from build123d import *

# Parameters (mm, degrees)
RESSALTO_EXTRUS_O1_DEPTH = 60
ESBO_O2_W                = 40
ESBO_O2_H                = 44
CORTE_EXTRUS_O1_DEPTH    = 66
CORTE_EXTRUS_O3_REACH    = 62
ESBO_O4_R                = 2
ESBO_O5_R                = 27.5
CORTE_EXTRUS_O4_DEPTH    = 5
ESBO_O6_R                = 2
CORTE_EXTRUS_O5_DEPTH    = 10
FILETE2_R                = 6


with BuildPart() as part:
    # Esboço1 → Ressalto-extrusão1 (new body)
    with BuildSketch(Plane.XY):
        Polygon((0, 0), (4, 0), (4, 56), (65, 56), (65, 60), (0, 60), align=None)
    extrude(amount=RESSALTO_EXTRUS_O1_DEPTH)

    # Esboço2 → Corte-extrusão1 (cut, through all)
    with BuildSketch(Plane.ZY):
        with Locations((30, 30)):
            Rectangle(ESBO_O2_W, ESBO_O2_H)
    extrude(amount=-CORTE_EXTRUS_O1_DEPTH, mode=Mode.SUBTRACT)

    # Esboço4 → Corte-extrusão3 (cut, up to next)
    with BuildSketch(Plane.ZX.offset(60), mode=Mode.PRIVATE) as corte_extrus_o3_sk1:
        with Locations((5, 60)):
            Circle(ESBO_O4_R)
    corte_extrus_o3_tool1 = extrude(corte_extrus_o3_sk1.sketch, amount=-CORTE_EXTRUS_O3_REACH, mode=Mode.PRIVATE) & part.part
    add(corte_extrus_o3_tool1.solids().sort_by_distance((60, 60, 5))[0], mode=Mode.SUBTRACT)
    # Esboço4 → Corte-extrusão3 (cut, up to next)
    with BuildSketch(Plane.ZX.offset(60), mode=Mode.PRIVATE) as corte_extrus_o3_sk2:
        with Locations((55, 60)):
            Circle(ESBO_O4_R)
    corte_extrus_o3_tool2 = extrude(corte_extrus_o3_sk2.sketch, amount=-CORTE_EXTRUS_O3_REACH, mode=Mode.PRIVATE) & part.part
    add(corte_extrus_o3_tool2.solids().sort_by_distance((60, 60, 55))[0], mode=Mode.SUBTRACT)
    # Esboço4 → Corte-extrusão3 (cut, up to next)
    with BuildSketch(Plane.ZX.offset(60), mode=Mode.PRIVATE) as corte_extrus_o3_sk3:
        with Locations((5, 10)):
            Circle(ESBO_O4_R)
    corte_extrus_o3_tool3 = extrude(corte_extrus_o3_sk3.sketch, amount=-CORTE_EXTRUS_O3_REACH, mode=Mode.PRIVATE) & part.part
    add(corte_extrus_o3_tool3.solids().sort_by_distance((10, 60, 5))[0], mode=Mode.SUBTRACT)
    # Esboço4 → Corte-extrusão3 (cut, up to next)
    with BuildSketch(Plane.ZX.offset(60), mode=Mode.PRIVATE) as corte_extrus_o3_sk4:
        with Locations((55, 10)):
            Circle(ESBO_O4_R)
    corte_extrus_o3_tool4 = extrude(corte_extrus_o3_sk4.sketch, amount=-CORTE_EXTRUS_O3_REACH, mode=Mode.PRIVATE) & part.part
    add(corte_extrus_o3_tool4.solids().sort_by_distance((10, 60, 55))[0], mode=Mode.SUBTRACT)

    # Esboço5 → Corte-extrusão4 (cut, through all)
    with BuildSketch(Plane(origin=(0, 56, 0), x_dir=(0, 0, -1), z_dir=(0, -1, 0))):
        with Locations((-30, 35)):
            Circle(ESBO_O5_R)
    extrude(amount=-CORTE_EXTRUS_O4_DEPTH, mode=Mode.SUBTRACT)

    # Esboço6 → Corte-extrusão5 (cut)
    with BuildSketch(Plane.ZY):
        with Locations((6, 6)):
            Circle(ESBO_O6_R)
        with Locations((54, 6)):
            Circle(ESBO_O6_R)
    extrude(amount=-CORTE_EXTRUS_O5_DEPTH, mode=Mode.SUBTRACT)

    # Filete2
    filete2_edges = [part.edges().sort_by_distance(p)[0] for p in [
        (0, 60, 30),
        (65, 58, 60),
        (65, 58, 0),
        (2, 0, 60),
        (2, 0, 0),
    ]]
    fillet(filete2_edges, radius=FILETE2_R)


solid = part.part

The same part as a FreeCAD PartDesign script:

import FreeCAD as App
import Part
import Sketcher
Q = App.Units.Quantity


def edges_at(feature, points):
    """Names of the edges that pass closest to the given points."""
    edges = feature.Shape.Edges
    near = lambda p: min(range(len(edges)), key=lambda i: edges[i].distToShape(Part.Vertex(*p))[0])
    return sorted({f"Edge{near(p) + 1}" for p in points})

doc = App.newDocument("Part")
body = doc.addObject("PartDesign::Body", "Body")

# Sketch on XY plane
sketch1 = body.newObject("Sketcher::SketchObject", "Sketch")
sketch1.AttachmentSupport = (doc.getObject("XY_Plane"), [""])
sketch1.MapMode = "FlatFace"
sketch1.addGeometry([
    Part.LineSegment(App.Vector(0, 0, 0), App.Vector(4, 0, 0)),  # 0
    Part.LineSegment(App.Vector(4, 0, 0), App.Vector(4, 56, 0)),  # 1
    Part.LineSegment(App.Vector(4, 56, 0), App.Vector(65, 56, 0)),  # 2
    Part.LineSegment(App.Vector(65, 56, 0), App.Vector(65, 60, 0)),  # 3
    Part.LineSegment(App.Vector(65, 60, 0), App.Vector(0, 60, 0)),  # 4
    Part.LineSegment(App.Vector(0, 60, 0), App.Vector(0, 0, 0)),  # 5
], False)
sketch1.addConstraint([
    Sketcher.Constraint("Coincident", 0, 2, 1, 1),
    Sketcher.Constraint("Coincident", 1, 2, 2, 1),
    Sketcher.Constraint("Coincident", 2, 2, 3, 1),
    Sketcher.Constraint("Coincident", 3, 2, 4, 1),
    Sketcher.Constraint("Coincident", 4, 2, 5, 1),
    Sketcher.Constraint("Coincident", 5, 2, 0, 1),
    Sketcher.Constraint("Horizontal", 0),
    Sketcher.Constraint("Vertical", 1),
    Sketcher.Constraint("Horizontal", 2),
    Sketcher.Constraint("Vertical", 3),
    Sketcher.Constraint("Horizontal", 4),
    Sketcher.Constraint("Vertical", 5),
    Sketcher.Constraint("Coincident", 5, 2, -1, 1),
    Sketcher.Constraint("Equal", 0, 3),
    Sketcher.Constraint("DistanceX", 0, 1, 0, 2, Q("4 mm")),
    Sketcher.Constraint("DistanceX", 2, 1, 2, 2, Q("61 mm")),
    Sketcher.Constraint("DistanceY", 1, 1, 1, 2, Q("56 mm")),
])
pad1 = body.newObject("PartDesign::Pad", "Pad")
pad1.Profile = sketch1
pad1.Length = 60

# Sketch on YZ plane
sketch2 = body.newObject("Sketcher::SketchObject", "Sketch001")
sketch2.AttachmentSupport = (doc.getObject("YZ_Plane"), [""])
sketch2.MapMode = "FlatFace"
sketch2.addGeometry([
    Part.LineSegment(App.Vector(52, 10, 0), App.Vector(8, 10, 0)),
    Part.LineSegment(App.Vector(8, 10, 0), App.Vector(8, 50, 0)),
    Part.LineSegment(App.Vector(8, 50, 0), App.Vector(52, 50, 0)),
    Part.LineSegment(App.Vector(52, 50, 0), App.Vector(52, 10, 0)),
], False)
sketch2.addConstraint([
    Sketcher.Constraint("Coincident", 0, 2, 1, 1),
    Sketcher.Constraint("Coincident", 1, 2, 2, 1),
    Sketcher.Constraint("Coincident", 2, 2, 3, 1),
    Sketcher.Constraint("Coincident", 3, 2, 0, 1),
    Sketcher.Constraint("Horizontal", 0),
    Sketcher.Constraint("Vertical", 1),
    Sketcher.Constraint("Horizontal", 2),
    Sketcher.Constraint("Vertical", 3),
    Sketcher.Constraint("DistanceX", 0, 2, 0, 1, Q("44 mm")),
    Sketcher.Constraint("DistanceY", 1, 1, 1, 2, Q("40 mm")),
    Sketcher.Constraint("DistanceX", -1, 1, 0, 2, Q("8 mm")),
    Sketcher.Constraint("DistanceY", -1, 1, 0, 2, Q("10 mm")),
])
pocket1 = body.newObject("PartDesign::Pocket", "Pocket")
pocket1.Profile = sketch2
pocket1.Type = "ThroughAll"
pocket1.Reversed = True

# Sketch on XZ plane
sketch3 = body.newObject("Sketcher::SketchObject", "Sketch002")
sketch3.AttachmentSupport = (doc.getObject("XZ_Plane"), [""])
sketch3.MapMode = "FlatFace"
sketch3.AttachmentOffset = App.Placement(App.Vector(0, 0, -60), App.Rotation())
sketch3.addGeometry(Part.Circle(App.Vector(60, 5, 0), App.Vector(0, 0, 1), 2), False)
sketch3.addConstraint([
    Sketcher.Constraint("Diameter", 0, Q("4 mm")),
    Sketcher.Constraint("DistanceX", -1, 1, 0, 3, Q("60 mm")),
    Sketcher.Constraint("DistanceY", -1, 1, 0, 3, Q("5 mm")),
])
pocket2 = body.newObject("PartDesign::Pocket", "Pocket001")
pocket2.Profile = sketch3
pocket2.Type = "UpToFirst"
pocket2.Reversed = True

# Sketch on XZ plane
sketch4 = body.newObject("Sketcher::SketchObject", "Sketch003")
sketch4.AttachmentSupport = (doc.getObject("XZ_Plane"), [""])
sketch4.MapMode = "FlatFace"
sketch4.AttachmentOffset = App.Placement(App.Vector(0, 0, -60), App.Rotation())
sketch4.addGeometry(Part.Circle(App.Vector(60, 55, 0), App.Vector(0, 0, 1), 2), False)
sketch4.addConstraint([
    Sketcher.Constraint("Diameter", 0, Q("4 mm")),
    Sketcher.Constraint("DistanceX", -1, 1, 0, 3, Q("60 mm")),
    Sketcher.Constraint("DistanceY", -1, 1, 0, 3, Q("55 mm")),
])
pocket3 = body.newObject("PartDesign::Pocket", "Pocket002")
pocket3.Profile = sketch4
pocket3.Type = "UpToFirst"
pocket3.Reversed = True

# Sketch on XZ plane
sketch5 = body.newObject("Sketcher::SketchObject", "Sketch004")
sketch5.AttachmentSupport = (doc.getObject("XZ_Plane"), [""])
sketch5.MapMode = "FlatFace"
sketch5.AttachmentOffset = App.Placement(App.Vector(0, 0, -60), App.Rotation())
sketch5.addGeometry(Part.Circle(App.Vector(10, 5, 0), App.Vector(0, 0, 1), 2), False)
sketch5.addConstraint([
    Sketcher.Constraint("Diameter", 0, Q("4 mm")),
    Sketcher.Constraint("DistanceX", -1, 1, 0, 3, Q("10 mm")),
    Sketcher.Constraint("DistanceY", -1, 1, 0, 3, Q("5 mm")),
])
pocket4 = body.newObject("PartDesign::Pocket", "Pocket003")
pocket4.Profile = sketch5
pocket4.Type = "UpToFirst"
pocket4.Reversed = True

# Sketch on XZ plane
sketch6 = body.newObject("Sketcher::SketchObject", "Sketch005")
sketch6.AttachmentSupport = (doc.getObject("XZ_Plane"), [""])
sketch6.MapMode = "FlatFace"
sketch6.AttachmentOffset = App.Placement(App.Vector(0, 0, -60), App.Rotation())
sketch6.addGeometry(Part.Circle(App.Vector(10, 55, 0), App.Vector(0, 0, 1), 2), False)
sketch6.addConstraint([
    Sketcher.Constraint("Diameter", 0, Q("4 mm")),
    Sketcher.Constraint("DistanceX", -1, 1, 0, 3, Q("10 mm")),
    Sketcher.Constraint("DistanceY", -1, 1, 0, 3, Q("55 mm")),
])
pocket5 = body.newObject("PartDesign::Pocket", "Pocket004")
pocket5.Profile = sketch6
pocket5.Type = "UpToFirst"
pocket5.Reversed = True

# Sketch on XZ plane
sketch7 = body.newObject("Sketcher::SketchObject", "Sketch006")
sketch7.AttachmentSupport = (doc.getObject("XZ_Plane"), [""])
sketch7.MapMode = "FlatFace"
sketch7.AttachmentOffset = App.Placement(App.Vector(0, 0, -56), App.Rotation())
sketch7.addGeometry(Part.Circle(App.Vector(35, 30, 0), App.Vector(0, 0, 1), 28), False)
sketch7.addConstraint([
    Sketcher.Constraint("Diameter", 0, Q("55 mm")),
    Sketcher.Constraint("DistanceX", -1, 1, 0, 3, Q("35 mm")),
    Sketcher.Constraint("DistanceY", -1, 1, 0, 3, Q("30 mm")),
])
pocket6 = body.newObject("PartDesign::Pocket", "Pocket005")
pocket6.Profile = sketch7
pocket6.Type = "ThroughAll"

# Sketch on YZ plane
sketch8 = body.newObject("Sketcher::SketchObject", "Sketch007")
sketch8.AttachmentSupport = (doc.getObject("YZ_Plane"), [""])
sketch8.MapMode = "FlatFace"
sketch8.addGeometry([
    Part.Circle(App.Vector(6, 6, 0), App.Vector(0, 0, 1), 2),
    Part.Circle(App.Vector(6, 54, 0), App.Vector(0, 0, 1), 2),
], False)
sketch8.addConstraint([
    Sketcher.Constraint("Equal", 0, 1),
    Sketcher.Constraint("Vertical", 0, 3, 1, 3),
    Sketcher.Constraint("Diameter", 0, Q("4 mm")),
    Sketcher.Constraint("DistanceX", -1, 1, 0, 3, Q("6 mm")),
    Sketcher.Constraint("DistanceY", -1, 1, 0, 3, Q("6 mm")),
    Sketcher.Constraint("DistanceY", -1, 1, 1, 3, Q("54 mm")),
])
pocket7 = body.newObject("PartDesign::Pocket", "Pocket006")
pocket7.Profile = sketch8
pocket7.Length = 10
pocket7.Reversed = True
doc.recompute()

fillet = body.newObject("PartDesign::Fillet", "Fillet")
fillet.Base = (pocket7, edges_at(pocket7, [
    (0, 60, 30),
    (65, 58, 60),
    (65, 58, 0),
    (2, 0, 60),
    (2, 0, 0),
]))
fillet.Radius = 6

doc.recompute()
